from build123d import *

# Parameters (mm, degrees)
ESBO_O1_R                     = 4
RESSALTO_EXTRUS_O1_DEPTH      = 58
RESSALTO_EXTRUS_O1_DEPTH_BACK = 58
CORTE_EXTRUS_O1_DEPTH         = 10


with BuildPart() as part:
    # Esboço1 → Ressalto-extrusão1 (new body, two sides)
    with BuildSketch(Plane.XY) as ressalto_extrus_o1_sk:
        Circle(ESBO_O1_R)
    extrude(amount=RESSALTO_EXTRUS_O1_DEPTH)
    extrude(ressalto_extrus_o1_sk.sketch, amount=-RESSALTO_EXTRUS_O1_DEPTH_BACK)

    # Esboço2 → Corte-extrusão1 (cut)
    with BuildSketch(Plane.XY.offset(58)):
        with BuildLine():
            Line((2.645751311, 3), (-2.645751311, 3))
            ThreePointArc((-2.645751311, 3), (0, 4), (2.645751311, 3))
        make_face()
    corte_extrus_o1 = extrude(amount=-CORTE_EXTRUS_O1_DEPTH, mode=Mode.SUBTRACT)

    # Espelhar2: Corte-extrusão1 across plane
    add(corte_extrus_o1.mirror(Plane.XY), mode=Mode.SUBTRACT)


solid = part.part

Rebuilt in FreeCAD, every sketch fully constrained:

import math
import FreeCAD as App
import Part
import Sketcher
Q = App.Units.Quantity

doc = App.newDocument("Part")
body = doc.addObject("PartDesign::Body", "Body")

sketch1 = doc.addObject("Sketcher::SketchObject", "Sketch")
body.addObject(sketch1)
sketch1.AttachmentSupport = (doc.XY_Plane, [""])
sketch1.MapMode = "FlatFace"
sketch1.addGeometry(Part.Circle(App.Vector(0, 0, 0), App.Vector(0, 0, 1), 4), False)
sketch1.addConstraint([
    Sketcher.Constraint("Coincident", 0, 3, -1, 1),
    Sketcher.Constraint("Diameter", 0, Q("8 mm")),
])
pad1 = doc.addObject("PartDesign::Pad", "Pad")
body.addObject(pad1)
pad1.Profile = sketch1
pad1.Type = "TwoLengths"
pad1.Length = 58
pad1.Length2 = 58

sketch2 = doc.addObject("Sketcher::SketchObject", "Sketch001")
body.addObject(sketch2)
sketch2.AttachmentSupport = (doc.XY_Plane, [""])
sketch2.MapMode = "FlatFace"
sketch2.AttachmentOffset = App.Placement(App.Vector(0, 0, 58), App.Rotation())
sketch2.addGeometry([
    Part.LineSegment(App.Vector(-2.645751, 3, 0), App.Vector(2.645751, 3, 0)),
    Part.ArcOfCircle(Part.Circle(App.Vector(0, 0, 0), App.Vector(0, 0, 1), 4), math.radians(48.590378), math.radians(131.409622)),
], False)
sketch2.addConstraint([
    Sketcher.Constraint("Coincident", 0, 1, 1, 2),
    Sketcher.Constraint("Coincident", 1, 1, 0, 2),
    Sketcher.Constraint("Horizontal", 0),
    Sketcher.Constraint("Coincident", 1, 3, -1, 1),
    Sketcher.Constraint("Radius", 1, Q("4 mm")),
    Sketcher.Constraint("DistanceY", -1, 1, 0, 1, Q("3 mm")),
])
pocket1 = doc.addObject("PartDesign::Pocket", "Pocket")
body.addObject(pocket1)
pocket1.Profile = sketch2
pocket1.Length = 10
doc.recompute()

mirrored = doc.addObject("PartDesign::Mirrored", "Mirrored")
body.addObject(mirrored)
mirrored.Originals = [pocket1]
mirrored.MirrorPlane = (doc.XY_Plane, [""])
body.Tip = mirrored

doc.recompute()
